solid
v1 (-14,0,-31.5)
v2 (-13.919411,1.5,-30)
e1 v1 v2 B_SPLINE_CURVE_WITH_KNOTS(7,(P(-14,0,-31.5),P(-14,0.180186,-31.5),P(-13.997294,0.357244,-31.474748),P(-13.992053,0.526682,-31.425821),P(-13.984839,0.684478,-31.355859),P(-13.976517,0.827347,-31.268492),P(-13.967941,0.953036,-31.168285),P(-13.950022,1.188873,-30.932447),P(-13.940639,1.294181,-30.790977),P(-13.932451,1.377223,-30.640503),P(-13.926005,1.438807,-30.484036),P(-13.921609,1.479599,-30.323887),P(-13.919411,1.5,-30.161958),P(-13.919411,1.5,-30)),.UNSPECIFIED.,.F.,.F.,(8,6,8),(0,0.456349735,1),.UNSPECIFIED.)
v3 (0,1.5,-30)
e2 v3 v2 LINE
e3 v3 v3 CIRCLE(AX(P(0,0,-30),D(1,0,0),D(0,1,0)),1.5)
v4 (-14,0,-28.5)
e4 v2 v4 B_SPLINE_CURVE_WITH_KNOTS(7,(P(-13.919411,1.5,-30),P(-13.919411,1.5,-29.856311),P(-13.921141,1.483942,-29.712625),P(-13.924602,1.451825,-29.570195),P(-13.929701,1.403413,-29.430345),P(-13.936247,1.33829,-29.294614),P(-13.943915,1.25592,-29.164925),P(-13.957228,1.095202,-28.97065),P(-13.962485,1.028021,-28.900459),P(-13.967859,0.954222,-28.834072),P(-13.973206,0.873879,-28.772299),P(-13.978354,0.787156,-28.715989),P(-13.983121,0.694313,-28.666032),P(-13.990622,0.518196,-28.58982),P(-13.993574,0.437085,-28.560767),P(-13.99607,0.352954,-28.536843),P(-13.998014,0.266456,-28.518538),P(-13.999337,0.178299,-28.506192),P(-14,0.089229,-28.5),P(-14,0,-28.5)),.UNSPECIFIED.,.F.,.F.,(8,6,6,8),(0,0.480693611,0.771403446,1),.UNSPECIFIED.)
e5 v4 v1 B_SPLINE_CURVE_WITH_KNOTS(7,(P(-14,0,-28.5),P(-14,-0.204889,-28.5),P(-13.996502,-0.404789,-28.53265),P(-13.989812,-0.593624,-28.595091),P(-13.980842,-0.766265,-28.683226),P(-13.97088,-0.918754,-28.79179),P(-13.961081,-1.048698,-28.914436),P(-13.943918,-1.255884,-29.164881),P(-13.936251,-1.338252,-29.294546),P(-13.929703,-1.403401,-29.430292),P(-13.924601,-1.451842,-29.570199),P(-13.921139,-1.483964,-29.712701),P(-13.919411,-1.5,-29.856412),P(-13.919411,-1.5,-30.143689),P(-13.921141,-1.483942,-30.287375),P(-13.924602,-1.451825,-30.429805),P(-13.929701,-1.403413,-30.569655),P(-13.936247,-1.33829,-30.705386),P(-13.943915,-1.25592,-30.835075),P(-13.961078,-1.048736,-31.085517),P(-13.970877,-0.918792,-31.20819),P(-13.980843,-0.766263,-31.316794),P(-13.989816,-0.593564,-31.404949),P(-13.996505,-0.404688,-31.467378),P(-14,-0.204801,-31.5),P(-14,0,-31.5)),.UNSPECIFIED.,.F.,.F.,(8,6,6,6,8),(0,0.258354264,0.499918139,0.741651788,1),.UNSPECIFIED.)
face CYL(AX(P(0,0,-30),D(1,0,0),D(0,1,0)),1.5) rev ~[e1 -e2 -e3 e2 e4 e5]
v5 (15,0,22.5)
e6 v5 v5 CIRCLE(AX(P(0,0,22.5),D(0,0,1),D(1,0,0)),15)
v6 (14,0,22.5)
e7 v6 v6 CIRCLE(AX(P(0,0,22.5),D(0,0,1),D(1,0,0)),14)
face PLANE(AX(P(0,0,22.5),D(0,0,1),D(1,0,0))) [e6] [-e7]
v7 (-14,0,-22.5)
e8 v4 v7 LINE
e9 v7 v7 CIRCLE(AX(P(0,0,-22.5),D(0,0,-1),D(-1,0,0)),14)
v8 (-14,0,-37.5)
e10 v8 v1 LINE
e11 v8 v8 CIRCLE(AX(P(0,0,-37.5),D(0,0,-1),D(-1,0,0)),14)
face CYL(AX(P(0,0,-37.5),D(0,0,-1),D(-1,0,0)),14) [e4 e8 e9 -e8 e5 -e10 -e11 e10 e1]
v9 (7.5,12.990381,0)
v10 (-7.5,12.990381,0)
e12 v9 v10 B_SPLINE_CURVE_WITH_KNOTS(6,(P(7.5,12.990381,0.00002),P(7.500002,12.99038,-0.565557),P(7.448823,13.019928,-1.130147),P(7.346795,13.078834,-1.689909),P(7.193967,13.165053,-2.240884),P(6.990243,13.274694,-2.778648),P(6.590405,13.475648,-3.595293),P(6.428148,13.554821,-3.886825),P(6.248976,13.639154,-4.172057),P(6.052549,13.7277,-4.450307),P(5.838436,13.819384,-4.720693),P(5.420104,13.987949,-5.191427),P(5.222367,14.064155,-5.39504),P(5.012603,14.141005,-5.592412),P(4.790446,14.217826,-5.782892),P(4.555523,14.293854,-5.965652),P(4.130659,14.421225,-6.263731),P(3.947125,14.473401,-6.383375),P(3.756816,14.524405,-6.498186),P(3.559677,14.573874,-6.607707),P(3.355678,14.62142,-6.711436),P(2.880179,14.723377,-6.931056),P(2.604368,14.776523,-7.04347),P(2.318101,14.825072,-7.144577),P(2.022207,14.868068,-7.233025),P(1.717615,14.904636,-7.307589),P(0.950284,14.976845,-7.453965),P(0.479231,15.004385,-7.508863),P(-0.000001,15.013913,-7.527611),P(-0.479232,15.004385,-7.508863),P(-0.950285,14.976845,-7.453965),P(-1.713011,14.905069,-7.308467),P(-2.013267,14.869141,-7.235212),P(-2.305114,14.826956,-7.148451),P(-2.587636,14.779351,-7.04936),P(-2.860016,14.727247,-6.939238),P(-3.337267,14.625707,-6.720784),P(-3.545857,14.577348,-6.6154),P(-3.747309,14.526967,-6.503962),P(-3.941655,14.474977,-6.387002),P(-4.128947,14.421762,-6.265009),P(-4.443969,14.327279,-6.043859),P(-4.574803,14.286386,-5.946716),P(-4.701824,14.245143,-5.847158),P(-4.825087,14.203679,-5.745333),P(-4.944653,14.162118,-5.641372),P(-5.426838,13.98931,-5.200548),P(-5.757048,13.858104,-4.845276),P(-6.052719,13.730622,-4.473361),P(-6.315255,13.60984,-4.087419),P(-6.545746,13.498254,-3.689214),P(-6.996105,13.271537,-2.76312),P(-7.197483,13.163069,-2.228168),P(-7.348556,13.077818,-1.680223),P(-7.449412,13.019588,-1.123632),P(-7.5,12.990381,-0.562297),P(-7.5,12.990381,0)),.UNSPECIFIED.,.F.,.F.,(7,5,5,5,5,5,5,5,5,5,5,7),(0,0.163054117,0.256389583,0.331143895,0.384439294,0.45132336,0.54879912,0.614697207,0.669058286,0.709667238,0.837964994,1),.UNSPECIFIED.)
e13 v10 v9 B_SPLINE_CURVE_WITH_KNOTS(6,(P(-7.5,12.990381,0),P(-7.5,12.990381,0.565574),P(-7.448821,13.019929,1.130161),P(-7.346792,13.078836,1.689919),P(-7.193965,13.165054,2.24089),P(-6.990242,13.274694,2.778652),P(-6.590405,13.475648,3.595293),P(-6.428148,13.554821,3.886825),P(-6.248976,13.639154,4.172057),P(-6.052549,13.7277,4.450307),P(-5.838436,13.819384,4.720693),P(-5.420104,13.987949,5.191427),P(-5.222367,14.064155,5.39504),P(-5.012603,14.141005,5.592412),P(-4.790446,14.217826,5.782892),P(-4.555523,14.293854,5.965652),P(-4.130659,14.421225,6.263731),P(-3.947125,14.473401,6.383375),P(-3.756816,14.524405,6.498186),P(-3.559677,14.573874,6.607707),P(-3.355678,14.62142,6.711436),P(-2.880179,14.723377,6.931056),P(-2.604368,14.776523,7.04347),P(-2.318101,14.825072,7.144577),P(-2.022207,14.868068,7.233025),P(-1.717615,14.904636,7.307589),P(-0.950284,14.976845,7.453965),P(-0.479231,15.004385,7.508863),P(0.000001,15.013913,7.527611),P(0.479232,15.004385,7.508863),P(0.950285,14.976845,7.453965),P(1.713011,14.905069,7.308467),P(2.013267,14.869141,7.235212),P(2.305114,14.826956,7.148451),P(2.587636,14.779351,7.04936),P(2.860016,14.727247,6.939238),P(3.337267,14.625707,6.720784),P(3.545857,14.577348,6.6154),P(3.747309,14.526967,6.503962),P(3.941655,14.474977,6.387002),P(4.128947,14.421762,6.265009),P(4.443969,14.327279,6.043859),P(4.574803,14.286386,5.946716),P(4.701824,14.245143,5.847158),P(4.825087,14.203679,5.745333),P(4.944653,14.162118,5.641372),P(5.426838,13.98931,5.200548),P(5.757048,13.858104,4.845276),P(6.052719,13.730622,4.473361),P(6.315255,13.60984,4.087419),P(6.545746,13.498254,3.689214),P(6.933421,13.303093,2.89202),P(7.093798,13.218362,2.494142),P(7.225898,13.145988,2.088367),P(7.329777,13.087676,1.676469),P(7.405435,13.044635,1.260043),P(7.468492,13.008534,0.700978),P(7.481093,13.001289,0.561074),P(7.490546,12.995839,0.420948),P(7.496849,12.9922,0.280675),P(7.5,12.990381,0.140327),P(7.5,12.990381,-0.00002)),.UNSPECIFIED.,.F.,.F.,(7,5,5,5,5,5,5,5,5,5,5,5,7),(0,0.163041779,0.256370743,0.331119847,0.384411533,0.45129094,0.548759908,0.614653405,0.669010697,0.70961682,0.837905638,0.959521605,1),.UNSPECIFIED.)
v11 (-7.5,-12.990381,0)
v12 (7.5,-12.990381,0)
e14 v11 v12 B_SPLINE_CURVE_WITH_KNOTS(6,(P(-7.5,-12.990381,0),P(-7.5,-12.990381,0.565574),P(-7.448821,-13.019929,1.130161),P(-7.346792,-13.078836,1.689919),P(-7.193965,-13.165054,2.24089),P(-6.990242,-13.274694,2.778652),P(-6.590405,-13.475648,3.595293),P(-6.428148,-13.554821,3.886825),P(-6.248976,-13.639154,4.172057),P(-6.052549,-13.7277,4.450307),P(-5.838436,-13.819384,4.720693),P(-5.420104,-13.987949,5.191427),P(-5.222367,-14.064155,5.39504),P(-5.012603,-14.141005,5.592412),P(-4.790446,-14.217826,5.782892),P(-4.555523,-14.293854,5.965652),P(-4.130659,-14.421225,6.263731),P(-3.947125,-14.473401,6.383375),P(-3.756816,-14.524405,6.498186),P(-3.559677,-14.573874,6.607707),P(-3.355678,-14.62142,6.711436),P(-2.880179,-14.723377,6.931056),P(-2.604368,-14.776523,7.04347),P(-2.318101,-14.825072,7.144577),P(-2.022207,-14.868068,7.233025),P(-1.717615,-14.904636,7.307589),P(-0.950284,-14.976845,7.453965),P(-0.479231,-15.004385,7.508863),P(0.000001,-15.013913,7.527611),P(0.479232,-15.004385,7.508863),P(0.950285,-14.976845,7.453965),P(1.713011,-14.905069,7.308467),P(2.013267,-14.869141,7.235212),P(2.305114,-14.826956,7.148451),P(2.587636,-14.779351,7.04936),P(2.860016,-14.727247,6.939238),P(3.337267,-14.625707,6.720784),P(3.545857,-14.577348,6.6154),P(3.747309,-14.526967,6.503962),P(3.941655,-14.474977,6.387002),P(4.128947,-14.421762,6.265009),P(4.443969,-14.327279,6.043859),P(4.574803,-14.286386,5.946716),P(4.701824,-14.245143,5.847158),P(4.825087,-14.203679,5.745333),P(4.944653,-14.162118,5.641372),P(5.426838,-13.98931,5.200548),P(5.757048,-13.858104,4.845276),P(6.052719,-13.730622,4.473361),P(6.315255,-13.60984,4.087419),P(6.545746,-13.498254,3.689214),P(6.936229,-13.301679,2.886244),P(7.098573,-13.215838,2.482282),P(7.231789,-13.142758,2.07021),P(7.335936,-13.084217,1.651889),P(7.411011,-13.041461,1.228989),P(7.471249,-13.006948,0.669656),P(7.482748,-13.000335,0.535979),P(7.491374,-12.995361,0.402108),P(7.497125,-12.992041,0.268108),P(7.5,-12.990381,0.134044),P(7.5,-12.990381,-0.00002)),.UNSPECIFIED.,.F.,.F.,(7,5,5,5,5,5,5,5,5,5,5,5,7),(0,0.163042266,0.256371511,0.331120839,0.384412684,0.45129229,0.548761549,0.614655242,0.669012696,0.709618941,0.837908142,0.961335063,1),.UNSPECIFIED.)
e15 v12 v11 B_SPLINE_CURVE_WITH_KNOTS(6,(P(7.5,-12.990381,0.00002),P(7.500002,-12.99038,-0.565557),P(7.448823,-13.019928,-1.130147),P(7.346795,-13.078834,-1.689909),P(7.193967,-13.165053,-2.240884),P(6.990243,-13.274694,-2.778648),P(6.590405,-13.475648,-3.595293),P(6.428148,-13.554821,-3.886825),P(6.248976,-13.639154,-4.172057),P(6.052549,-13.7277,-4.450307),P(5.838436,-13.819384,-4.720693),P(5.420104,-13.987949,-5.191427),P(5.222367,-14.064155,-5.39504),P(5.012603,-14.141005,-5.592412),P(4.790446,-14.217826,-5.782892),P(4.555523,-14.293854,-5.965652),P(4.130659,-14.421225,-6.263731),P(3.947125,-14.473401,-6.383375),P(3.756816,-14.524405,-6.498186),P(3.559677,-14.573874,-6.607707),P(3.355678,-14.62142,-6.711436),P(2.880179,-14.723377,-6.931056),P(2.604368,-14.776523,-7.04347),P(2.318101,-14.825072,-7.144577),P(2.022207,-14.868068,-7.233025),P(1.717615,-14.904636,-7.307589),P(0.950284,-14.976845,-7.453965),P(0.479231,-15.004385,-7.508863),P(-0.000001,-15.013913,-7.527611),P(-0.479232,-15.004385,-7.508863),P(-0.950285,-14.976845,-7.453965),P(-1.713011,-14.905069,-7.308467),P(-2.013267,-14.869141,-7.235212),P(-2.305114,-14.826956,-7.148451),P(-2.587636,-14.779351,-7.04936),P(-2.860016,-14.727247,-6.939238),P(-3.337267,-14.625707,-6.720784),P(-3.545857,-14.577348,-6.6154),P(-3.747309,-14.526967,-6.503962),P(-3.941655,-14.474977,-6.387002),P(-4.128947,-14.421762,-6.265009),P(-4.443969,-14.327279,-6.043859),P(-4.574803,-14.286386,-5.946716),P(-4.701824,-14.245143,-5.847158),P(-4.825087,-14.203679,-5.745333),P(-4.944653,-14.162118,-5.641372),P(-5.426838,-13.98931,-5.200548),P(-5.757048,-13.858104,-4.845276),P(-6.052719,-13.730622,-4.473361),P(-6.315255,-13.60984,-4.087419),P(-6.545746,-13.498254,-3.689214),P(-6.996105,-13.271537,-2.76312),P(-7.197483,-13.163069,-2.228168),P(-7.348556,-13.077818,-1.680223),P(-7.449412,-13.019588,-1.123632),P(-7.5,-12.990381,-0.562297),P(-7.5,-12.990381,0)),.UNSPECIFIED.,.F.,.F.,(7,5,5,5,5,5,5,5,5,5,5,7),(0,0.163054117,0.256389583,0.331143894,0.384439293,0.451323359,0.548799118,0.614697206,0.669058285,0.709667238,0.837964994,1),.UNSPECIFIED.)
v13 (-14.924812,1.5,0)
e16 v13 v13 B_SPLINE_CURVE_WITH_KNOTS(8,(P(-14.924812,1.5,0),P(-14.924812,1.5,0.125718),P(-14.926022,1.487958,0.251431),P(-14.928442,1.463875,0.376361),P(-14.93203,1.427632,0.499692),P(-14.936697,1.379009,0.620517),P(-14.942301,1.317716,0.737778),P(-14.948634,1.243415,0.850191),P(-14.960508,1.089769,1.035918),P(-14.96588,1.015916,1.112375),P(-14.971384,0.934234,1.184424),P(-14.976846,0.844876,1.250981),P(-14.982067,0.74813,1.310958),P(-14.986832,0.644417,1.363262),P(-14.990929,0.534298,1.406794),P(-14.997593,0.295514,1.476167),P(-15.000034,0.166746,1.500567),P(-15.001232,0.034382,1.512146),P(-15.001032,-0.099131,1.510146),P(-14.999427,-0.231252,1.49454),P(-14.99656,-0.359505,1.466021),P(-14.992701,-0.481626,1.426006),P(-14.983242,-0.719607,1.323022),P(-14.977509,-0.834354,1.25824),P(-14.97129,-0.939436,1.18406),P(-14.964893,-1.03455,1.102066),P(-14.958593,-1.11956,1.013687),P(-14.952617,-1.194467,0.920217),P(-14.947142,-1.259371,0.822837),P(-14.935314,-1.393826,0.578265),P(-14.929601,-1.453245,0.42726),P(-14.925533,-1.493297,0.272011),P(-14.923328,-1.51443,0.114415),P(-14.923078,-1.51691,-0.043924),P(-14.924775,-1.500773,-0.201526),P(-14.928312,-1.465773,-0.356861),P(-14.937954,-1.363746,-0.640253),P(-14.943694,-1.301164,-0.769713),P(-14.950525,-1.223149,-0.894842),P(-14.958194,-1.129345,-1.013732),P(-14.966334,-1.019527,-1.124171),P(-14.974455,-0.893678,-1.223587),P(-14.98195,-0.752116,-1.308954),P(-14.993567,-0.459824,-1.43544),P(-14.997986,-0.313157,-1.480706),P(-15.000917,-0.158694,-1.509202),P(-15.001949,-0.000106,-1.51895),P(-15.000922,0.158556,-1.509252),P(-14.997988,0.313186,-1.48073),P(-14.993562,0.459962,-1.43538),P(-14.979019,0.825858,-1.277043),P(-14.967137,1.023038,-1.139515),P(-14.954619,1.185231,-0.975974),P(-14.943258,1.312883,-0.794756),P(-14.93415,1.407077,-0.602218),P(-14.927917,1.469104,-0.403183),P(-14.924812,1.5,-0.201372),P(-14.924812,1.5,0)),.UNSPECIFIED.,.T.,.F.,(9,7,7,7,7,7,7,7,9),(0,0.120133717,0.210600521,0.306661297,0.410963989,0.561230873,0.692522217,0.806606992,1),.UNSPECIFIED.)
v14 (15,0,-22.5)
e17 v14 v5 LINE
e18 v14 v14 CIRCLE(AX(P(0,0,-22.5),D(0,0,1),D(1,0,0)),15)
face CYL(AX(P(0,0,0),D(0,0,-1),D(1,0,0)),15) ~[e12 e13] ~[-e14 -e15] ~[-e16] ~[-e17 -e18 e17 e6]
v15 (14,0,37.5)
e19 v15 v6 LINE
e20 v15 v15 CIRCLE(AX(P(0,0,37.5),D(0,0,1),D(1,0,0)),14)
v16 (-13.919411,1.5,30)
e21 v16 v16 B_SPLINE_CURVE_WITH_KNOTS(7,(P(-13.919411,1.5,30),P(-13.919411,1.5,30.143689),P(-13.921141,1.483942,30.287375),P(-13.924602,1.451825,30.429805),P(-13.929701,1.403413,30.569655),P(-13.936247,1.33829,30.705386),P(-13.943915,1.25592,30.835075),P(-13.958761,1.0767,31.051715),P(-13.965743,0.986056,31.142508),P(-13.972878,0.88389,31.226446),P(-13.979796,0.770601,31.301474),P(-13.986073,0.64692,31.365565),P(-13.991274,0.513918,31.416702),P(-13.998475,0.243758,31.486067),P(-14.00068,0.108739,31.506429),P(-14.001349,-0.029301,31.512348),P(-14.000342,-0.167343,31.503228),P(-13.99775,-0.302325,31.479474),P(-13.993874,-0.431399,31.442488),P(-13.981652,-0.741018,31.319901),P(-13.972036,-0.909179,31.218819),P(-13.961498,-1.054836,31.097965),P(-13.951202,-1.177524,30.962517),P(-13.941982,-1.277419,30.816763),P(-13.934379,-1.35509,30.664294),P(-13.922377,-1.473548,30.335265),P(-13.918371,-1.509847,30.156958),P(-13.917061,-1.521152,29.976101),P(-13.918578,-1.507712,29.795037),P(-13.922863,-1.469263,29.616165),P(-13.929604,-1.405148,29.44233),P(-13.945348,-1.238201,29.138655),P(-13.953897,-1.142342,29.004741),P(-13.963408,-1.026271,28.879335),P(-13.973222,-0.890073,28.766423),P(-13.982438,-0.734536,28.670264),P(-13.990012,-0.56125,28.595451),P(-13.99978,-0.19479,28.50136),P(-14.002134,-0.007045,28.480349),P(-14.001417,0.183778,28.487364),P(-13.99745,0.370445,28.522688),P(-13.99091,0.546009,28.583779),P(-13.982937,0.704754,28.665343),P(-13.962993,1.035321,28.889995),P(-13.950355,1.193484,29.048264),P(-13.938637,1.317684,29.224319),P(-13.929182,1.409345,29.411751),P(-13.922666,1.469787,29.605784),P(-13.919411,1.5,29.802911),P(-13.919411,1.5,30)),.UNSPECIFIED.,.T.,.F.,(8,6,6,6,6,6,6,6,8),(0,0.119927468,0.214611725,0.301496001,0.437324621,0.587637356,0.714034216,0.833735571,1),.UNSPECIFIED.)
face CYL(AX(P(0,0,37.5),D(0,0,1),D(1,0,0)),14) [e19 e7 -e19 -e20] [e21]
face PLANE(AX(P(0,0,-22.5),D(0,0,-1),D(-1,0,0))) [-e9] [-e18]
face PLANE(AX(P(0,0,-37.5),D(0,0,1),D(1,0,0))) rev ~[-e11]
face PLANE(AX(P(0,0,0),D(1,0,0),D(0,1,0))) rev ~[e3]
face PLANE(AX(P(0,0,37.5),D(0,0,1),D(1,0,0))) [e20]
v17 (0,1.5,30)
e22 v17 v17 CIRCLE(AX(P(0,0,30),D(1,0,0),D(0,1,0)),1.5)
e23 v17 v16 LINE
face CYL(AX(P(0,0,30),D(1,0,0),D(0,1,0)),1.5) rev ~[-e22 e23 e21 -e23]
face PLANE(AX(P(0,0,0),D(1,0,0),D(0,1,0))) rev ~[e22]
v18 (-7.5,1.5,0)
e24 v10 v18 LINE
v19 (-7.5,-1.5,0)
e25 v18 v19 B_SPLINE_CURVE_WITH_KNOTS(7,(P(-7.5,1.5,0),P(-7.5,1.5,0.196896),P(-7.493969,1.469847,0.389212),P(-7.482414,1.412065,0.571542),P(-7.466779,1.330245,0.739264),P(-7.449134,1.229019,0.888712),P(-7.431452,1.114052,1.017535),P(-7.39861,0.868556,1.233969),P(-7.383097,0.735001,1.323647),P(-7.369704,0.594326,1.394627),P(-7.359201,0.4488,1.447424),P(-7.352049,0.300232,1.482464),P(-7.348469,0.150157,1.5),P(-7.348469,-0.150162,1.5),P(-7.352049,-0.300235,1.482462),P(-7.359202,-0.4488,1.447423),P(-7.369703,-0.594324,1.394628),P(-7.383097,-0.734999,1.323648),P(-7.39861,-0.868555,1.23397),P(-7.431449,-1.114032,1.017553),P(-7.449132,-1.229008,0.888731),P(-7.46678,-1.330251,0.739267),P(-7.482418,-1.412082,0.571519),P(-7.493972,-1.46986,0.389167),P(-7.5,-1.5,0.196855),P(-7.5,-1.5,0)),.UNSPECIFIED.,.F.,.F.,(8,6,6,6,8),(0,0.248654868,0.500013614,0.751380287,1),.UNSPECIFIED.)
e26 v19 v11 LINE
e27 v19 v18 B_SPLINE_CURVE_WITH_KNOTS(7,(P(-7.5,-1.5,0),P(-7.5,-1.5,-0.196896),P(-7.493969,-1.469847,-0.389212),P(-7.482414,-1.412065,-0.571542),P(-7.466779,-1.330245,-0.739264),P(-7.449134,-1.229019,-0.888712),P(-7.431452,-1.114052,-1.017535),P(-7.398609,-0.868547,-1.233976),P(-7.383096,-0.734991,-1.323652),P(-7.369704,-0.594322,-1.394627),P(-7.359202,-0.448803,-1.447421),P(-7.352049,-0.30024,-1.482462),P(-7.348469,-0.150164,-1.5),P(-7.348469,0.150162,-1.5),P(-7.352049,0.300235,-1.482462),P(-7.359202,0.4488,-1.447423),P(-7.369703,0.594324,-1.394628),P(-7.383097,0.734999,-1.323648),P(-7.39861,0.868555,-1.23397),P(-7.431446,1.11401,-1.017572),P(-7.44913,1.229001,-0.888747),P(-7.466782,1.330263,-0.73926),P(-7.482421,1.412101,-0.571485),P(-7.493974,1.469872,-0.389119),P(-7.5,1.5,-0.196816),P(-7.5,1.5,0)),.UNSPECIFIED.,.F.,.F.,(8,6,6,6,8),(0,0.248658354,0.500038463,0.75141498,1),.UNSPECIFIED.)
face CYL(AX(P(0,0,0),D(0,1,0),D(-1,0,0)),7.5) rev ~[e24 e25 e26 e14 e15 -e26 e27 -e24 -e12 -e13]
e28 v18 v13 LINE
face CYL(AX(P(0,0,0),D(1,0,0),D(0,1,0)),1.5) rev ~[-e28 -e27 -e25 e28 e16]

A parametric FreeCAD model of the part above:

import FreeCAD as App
import Part
import Sketcher
from FreeCAD import Vector

doc = App.newDocument("Part")
body = doc.addObject("PartDesign::Body", "Body")

# Sketch on XY plane
sketch1 = body.newObject("Sketcher::SketchObject", "Sketch")
sketch1.AttachmentSupport = (doc.getObject("XY_Plane"), [""])
sketch1.MapMode = "FlatFace"
sketch1.addGeometry(Part.Circle(Vector(0, 0, 0), Vector(0, 0, 1), 15), False)
sketch1.addConstraint([
    Sketcher.Constraint("Coincident", 0, 3, -1, 1),
    Sketcher.Constraint("Diameter", 0, 30.0),
])
pad1 = body.newObject("PartDesign::Pad", "Pad")
pad1.Profile = sketch1
pad1.Length = 75
pad1.Midplane = True

# Sketch on XZ plane
sketch2 = body.newObject("Sketcher::SketchObject", "Sketch001")
sketch2.AttachmentSupport = (doc.getObject("XZ_Plane"), [""])
sketch2.MapMode = "FlatFace"
sketch2.addGeometry(Part.Circle(Vector(0, 0, 0), Vector(0, 0, 1), 7.5), False)
sketch2.addConstraint([
    Sketcher.Constraint("Coincident", 0, 3, -1, 1),
    Sketcher.Constraint("Diameter", 0, 15.0),
])
pocket1 = body.newObject("PartDesign::Pocket", "Pocket")
pocket1.Profile = sketch2
pocket1.Length = 35
pocket1.Midplane = True

# Sketch on XY plane
sketch3 = body.newObject("Sketcher::SketchObject", "Sketch002")
sketch3.AttachmentSupport = (doc.getObject("XY_Plane"), [""])
sketch3.MapMode = "FlatFace"
sketch3.AttachmentOffset = App.Placement(Vector(0, 0, 37.5), App.Rotation())
sketch3.addGeometry([
    Part.Circle(Vector(0, 0, 0), Vector(0, 0, 1), 15),
    Part.Circle(Vector(0, 0, 0), Vector(0, 0, 1), 14),
], False)
sketch3.addConstraint([
    Sketcher.Constraint("Coincident", 0, 3, -1, 1),
    Sketcher.Constraint("Coincident", 1, 3, -1, 1),
    Sketcher.Constraint("Diameter", 0, 30.0),
    Sketcher.Constraint("Diameter", 1, 28.0),
])
pocket2 = body.newObject("PartDesign::Pocket", "Pocket001")
pocket2.Profile = sketch3
pocket2.Length = 15

# Sketch on XY plane
sketch4 = body.newObject("Sketcher::SketchObject", "Sketch003")
sketch4.AttachmentSupport = (doc.getObject("XY_Plane"), [""])
sketch4.MapMode = "FlatFace"
sketch4.AttachmentOffset = App.Placement(Vector(0, 0, -37.5), App.Rotation())
sketch4.addGeometry([
    Part.Circle(Vector(0, 0, 0), Vector(0, 0, 1), 15),
    Part.Circle(Vector(0, 0, 0), Vector(0, 0, 1), 14),
], False)
sketch4.addConstraint([
    Sketcher.Constraint("Coincident", 0, 3, -1, 1),
    Sketcher.Constraint("Coincident", 1, 3, -1, 1),
    Sketcher.Constraint("Diameter", 0, 30.0),
    Sketcher.Constraint("Diameter", 1, 28.0),
])
pocket3 = body.newObject("PartDesign::Pocket", "Pocket002")
pocket3.Profile = sketch4
pocket3.Length = 15
pocket3.Reversed = True

# Sketch on YZ plane
sketch5 = body.newObject("Sketcher::SketchObject", "Sketch004")
sketch5.AttachmentSupport = (doc.getObject("YZ_Plane"), [""])
sketch5.MapMode = "FlatFace"
sketch5.addGeometry([
    Part.Circle(Vector(0, 0, 0), Vector(0, 0, 1), 1.5),
    Part.Circle(Vector(0, -30, 0), Vector(0, 0, 1), 1.5),
    Part.Circle(Vector(0, 30, 0), Vector(0, 0, 1), 1.5),
], False)
sketch5.addConstraint([
    Sketcher.Constraint("Coincident", 0, 3, -1, 1),
    Sketcher.Constraint("Equal", 0, 1),
    Sketcher.Constraint("Equal", 1, 2),
    Sketcher.Constraint("Symmetric", 1, 3, 2, 3, -1, 1),
    Sketcher.Constraint("PointOnObject", 1, 3, -2),
    Sketcher.Constraint("Diameter", 0, 3.0),
    Sketcher.Constraint("DistanceY", 1, 3, -1, 1, 30.0),
])
pocket4 = body.newObject("PartDesign::Pocket", "Pocket003")
pocket4.Profile = sketch5
pocket4.Length = 30

doc.recompute()
